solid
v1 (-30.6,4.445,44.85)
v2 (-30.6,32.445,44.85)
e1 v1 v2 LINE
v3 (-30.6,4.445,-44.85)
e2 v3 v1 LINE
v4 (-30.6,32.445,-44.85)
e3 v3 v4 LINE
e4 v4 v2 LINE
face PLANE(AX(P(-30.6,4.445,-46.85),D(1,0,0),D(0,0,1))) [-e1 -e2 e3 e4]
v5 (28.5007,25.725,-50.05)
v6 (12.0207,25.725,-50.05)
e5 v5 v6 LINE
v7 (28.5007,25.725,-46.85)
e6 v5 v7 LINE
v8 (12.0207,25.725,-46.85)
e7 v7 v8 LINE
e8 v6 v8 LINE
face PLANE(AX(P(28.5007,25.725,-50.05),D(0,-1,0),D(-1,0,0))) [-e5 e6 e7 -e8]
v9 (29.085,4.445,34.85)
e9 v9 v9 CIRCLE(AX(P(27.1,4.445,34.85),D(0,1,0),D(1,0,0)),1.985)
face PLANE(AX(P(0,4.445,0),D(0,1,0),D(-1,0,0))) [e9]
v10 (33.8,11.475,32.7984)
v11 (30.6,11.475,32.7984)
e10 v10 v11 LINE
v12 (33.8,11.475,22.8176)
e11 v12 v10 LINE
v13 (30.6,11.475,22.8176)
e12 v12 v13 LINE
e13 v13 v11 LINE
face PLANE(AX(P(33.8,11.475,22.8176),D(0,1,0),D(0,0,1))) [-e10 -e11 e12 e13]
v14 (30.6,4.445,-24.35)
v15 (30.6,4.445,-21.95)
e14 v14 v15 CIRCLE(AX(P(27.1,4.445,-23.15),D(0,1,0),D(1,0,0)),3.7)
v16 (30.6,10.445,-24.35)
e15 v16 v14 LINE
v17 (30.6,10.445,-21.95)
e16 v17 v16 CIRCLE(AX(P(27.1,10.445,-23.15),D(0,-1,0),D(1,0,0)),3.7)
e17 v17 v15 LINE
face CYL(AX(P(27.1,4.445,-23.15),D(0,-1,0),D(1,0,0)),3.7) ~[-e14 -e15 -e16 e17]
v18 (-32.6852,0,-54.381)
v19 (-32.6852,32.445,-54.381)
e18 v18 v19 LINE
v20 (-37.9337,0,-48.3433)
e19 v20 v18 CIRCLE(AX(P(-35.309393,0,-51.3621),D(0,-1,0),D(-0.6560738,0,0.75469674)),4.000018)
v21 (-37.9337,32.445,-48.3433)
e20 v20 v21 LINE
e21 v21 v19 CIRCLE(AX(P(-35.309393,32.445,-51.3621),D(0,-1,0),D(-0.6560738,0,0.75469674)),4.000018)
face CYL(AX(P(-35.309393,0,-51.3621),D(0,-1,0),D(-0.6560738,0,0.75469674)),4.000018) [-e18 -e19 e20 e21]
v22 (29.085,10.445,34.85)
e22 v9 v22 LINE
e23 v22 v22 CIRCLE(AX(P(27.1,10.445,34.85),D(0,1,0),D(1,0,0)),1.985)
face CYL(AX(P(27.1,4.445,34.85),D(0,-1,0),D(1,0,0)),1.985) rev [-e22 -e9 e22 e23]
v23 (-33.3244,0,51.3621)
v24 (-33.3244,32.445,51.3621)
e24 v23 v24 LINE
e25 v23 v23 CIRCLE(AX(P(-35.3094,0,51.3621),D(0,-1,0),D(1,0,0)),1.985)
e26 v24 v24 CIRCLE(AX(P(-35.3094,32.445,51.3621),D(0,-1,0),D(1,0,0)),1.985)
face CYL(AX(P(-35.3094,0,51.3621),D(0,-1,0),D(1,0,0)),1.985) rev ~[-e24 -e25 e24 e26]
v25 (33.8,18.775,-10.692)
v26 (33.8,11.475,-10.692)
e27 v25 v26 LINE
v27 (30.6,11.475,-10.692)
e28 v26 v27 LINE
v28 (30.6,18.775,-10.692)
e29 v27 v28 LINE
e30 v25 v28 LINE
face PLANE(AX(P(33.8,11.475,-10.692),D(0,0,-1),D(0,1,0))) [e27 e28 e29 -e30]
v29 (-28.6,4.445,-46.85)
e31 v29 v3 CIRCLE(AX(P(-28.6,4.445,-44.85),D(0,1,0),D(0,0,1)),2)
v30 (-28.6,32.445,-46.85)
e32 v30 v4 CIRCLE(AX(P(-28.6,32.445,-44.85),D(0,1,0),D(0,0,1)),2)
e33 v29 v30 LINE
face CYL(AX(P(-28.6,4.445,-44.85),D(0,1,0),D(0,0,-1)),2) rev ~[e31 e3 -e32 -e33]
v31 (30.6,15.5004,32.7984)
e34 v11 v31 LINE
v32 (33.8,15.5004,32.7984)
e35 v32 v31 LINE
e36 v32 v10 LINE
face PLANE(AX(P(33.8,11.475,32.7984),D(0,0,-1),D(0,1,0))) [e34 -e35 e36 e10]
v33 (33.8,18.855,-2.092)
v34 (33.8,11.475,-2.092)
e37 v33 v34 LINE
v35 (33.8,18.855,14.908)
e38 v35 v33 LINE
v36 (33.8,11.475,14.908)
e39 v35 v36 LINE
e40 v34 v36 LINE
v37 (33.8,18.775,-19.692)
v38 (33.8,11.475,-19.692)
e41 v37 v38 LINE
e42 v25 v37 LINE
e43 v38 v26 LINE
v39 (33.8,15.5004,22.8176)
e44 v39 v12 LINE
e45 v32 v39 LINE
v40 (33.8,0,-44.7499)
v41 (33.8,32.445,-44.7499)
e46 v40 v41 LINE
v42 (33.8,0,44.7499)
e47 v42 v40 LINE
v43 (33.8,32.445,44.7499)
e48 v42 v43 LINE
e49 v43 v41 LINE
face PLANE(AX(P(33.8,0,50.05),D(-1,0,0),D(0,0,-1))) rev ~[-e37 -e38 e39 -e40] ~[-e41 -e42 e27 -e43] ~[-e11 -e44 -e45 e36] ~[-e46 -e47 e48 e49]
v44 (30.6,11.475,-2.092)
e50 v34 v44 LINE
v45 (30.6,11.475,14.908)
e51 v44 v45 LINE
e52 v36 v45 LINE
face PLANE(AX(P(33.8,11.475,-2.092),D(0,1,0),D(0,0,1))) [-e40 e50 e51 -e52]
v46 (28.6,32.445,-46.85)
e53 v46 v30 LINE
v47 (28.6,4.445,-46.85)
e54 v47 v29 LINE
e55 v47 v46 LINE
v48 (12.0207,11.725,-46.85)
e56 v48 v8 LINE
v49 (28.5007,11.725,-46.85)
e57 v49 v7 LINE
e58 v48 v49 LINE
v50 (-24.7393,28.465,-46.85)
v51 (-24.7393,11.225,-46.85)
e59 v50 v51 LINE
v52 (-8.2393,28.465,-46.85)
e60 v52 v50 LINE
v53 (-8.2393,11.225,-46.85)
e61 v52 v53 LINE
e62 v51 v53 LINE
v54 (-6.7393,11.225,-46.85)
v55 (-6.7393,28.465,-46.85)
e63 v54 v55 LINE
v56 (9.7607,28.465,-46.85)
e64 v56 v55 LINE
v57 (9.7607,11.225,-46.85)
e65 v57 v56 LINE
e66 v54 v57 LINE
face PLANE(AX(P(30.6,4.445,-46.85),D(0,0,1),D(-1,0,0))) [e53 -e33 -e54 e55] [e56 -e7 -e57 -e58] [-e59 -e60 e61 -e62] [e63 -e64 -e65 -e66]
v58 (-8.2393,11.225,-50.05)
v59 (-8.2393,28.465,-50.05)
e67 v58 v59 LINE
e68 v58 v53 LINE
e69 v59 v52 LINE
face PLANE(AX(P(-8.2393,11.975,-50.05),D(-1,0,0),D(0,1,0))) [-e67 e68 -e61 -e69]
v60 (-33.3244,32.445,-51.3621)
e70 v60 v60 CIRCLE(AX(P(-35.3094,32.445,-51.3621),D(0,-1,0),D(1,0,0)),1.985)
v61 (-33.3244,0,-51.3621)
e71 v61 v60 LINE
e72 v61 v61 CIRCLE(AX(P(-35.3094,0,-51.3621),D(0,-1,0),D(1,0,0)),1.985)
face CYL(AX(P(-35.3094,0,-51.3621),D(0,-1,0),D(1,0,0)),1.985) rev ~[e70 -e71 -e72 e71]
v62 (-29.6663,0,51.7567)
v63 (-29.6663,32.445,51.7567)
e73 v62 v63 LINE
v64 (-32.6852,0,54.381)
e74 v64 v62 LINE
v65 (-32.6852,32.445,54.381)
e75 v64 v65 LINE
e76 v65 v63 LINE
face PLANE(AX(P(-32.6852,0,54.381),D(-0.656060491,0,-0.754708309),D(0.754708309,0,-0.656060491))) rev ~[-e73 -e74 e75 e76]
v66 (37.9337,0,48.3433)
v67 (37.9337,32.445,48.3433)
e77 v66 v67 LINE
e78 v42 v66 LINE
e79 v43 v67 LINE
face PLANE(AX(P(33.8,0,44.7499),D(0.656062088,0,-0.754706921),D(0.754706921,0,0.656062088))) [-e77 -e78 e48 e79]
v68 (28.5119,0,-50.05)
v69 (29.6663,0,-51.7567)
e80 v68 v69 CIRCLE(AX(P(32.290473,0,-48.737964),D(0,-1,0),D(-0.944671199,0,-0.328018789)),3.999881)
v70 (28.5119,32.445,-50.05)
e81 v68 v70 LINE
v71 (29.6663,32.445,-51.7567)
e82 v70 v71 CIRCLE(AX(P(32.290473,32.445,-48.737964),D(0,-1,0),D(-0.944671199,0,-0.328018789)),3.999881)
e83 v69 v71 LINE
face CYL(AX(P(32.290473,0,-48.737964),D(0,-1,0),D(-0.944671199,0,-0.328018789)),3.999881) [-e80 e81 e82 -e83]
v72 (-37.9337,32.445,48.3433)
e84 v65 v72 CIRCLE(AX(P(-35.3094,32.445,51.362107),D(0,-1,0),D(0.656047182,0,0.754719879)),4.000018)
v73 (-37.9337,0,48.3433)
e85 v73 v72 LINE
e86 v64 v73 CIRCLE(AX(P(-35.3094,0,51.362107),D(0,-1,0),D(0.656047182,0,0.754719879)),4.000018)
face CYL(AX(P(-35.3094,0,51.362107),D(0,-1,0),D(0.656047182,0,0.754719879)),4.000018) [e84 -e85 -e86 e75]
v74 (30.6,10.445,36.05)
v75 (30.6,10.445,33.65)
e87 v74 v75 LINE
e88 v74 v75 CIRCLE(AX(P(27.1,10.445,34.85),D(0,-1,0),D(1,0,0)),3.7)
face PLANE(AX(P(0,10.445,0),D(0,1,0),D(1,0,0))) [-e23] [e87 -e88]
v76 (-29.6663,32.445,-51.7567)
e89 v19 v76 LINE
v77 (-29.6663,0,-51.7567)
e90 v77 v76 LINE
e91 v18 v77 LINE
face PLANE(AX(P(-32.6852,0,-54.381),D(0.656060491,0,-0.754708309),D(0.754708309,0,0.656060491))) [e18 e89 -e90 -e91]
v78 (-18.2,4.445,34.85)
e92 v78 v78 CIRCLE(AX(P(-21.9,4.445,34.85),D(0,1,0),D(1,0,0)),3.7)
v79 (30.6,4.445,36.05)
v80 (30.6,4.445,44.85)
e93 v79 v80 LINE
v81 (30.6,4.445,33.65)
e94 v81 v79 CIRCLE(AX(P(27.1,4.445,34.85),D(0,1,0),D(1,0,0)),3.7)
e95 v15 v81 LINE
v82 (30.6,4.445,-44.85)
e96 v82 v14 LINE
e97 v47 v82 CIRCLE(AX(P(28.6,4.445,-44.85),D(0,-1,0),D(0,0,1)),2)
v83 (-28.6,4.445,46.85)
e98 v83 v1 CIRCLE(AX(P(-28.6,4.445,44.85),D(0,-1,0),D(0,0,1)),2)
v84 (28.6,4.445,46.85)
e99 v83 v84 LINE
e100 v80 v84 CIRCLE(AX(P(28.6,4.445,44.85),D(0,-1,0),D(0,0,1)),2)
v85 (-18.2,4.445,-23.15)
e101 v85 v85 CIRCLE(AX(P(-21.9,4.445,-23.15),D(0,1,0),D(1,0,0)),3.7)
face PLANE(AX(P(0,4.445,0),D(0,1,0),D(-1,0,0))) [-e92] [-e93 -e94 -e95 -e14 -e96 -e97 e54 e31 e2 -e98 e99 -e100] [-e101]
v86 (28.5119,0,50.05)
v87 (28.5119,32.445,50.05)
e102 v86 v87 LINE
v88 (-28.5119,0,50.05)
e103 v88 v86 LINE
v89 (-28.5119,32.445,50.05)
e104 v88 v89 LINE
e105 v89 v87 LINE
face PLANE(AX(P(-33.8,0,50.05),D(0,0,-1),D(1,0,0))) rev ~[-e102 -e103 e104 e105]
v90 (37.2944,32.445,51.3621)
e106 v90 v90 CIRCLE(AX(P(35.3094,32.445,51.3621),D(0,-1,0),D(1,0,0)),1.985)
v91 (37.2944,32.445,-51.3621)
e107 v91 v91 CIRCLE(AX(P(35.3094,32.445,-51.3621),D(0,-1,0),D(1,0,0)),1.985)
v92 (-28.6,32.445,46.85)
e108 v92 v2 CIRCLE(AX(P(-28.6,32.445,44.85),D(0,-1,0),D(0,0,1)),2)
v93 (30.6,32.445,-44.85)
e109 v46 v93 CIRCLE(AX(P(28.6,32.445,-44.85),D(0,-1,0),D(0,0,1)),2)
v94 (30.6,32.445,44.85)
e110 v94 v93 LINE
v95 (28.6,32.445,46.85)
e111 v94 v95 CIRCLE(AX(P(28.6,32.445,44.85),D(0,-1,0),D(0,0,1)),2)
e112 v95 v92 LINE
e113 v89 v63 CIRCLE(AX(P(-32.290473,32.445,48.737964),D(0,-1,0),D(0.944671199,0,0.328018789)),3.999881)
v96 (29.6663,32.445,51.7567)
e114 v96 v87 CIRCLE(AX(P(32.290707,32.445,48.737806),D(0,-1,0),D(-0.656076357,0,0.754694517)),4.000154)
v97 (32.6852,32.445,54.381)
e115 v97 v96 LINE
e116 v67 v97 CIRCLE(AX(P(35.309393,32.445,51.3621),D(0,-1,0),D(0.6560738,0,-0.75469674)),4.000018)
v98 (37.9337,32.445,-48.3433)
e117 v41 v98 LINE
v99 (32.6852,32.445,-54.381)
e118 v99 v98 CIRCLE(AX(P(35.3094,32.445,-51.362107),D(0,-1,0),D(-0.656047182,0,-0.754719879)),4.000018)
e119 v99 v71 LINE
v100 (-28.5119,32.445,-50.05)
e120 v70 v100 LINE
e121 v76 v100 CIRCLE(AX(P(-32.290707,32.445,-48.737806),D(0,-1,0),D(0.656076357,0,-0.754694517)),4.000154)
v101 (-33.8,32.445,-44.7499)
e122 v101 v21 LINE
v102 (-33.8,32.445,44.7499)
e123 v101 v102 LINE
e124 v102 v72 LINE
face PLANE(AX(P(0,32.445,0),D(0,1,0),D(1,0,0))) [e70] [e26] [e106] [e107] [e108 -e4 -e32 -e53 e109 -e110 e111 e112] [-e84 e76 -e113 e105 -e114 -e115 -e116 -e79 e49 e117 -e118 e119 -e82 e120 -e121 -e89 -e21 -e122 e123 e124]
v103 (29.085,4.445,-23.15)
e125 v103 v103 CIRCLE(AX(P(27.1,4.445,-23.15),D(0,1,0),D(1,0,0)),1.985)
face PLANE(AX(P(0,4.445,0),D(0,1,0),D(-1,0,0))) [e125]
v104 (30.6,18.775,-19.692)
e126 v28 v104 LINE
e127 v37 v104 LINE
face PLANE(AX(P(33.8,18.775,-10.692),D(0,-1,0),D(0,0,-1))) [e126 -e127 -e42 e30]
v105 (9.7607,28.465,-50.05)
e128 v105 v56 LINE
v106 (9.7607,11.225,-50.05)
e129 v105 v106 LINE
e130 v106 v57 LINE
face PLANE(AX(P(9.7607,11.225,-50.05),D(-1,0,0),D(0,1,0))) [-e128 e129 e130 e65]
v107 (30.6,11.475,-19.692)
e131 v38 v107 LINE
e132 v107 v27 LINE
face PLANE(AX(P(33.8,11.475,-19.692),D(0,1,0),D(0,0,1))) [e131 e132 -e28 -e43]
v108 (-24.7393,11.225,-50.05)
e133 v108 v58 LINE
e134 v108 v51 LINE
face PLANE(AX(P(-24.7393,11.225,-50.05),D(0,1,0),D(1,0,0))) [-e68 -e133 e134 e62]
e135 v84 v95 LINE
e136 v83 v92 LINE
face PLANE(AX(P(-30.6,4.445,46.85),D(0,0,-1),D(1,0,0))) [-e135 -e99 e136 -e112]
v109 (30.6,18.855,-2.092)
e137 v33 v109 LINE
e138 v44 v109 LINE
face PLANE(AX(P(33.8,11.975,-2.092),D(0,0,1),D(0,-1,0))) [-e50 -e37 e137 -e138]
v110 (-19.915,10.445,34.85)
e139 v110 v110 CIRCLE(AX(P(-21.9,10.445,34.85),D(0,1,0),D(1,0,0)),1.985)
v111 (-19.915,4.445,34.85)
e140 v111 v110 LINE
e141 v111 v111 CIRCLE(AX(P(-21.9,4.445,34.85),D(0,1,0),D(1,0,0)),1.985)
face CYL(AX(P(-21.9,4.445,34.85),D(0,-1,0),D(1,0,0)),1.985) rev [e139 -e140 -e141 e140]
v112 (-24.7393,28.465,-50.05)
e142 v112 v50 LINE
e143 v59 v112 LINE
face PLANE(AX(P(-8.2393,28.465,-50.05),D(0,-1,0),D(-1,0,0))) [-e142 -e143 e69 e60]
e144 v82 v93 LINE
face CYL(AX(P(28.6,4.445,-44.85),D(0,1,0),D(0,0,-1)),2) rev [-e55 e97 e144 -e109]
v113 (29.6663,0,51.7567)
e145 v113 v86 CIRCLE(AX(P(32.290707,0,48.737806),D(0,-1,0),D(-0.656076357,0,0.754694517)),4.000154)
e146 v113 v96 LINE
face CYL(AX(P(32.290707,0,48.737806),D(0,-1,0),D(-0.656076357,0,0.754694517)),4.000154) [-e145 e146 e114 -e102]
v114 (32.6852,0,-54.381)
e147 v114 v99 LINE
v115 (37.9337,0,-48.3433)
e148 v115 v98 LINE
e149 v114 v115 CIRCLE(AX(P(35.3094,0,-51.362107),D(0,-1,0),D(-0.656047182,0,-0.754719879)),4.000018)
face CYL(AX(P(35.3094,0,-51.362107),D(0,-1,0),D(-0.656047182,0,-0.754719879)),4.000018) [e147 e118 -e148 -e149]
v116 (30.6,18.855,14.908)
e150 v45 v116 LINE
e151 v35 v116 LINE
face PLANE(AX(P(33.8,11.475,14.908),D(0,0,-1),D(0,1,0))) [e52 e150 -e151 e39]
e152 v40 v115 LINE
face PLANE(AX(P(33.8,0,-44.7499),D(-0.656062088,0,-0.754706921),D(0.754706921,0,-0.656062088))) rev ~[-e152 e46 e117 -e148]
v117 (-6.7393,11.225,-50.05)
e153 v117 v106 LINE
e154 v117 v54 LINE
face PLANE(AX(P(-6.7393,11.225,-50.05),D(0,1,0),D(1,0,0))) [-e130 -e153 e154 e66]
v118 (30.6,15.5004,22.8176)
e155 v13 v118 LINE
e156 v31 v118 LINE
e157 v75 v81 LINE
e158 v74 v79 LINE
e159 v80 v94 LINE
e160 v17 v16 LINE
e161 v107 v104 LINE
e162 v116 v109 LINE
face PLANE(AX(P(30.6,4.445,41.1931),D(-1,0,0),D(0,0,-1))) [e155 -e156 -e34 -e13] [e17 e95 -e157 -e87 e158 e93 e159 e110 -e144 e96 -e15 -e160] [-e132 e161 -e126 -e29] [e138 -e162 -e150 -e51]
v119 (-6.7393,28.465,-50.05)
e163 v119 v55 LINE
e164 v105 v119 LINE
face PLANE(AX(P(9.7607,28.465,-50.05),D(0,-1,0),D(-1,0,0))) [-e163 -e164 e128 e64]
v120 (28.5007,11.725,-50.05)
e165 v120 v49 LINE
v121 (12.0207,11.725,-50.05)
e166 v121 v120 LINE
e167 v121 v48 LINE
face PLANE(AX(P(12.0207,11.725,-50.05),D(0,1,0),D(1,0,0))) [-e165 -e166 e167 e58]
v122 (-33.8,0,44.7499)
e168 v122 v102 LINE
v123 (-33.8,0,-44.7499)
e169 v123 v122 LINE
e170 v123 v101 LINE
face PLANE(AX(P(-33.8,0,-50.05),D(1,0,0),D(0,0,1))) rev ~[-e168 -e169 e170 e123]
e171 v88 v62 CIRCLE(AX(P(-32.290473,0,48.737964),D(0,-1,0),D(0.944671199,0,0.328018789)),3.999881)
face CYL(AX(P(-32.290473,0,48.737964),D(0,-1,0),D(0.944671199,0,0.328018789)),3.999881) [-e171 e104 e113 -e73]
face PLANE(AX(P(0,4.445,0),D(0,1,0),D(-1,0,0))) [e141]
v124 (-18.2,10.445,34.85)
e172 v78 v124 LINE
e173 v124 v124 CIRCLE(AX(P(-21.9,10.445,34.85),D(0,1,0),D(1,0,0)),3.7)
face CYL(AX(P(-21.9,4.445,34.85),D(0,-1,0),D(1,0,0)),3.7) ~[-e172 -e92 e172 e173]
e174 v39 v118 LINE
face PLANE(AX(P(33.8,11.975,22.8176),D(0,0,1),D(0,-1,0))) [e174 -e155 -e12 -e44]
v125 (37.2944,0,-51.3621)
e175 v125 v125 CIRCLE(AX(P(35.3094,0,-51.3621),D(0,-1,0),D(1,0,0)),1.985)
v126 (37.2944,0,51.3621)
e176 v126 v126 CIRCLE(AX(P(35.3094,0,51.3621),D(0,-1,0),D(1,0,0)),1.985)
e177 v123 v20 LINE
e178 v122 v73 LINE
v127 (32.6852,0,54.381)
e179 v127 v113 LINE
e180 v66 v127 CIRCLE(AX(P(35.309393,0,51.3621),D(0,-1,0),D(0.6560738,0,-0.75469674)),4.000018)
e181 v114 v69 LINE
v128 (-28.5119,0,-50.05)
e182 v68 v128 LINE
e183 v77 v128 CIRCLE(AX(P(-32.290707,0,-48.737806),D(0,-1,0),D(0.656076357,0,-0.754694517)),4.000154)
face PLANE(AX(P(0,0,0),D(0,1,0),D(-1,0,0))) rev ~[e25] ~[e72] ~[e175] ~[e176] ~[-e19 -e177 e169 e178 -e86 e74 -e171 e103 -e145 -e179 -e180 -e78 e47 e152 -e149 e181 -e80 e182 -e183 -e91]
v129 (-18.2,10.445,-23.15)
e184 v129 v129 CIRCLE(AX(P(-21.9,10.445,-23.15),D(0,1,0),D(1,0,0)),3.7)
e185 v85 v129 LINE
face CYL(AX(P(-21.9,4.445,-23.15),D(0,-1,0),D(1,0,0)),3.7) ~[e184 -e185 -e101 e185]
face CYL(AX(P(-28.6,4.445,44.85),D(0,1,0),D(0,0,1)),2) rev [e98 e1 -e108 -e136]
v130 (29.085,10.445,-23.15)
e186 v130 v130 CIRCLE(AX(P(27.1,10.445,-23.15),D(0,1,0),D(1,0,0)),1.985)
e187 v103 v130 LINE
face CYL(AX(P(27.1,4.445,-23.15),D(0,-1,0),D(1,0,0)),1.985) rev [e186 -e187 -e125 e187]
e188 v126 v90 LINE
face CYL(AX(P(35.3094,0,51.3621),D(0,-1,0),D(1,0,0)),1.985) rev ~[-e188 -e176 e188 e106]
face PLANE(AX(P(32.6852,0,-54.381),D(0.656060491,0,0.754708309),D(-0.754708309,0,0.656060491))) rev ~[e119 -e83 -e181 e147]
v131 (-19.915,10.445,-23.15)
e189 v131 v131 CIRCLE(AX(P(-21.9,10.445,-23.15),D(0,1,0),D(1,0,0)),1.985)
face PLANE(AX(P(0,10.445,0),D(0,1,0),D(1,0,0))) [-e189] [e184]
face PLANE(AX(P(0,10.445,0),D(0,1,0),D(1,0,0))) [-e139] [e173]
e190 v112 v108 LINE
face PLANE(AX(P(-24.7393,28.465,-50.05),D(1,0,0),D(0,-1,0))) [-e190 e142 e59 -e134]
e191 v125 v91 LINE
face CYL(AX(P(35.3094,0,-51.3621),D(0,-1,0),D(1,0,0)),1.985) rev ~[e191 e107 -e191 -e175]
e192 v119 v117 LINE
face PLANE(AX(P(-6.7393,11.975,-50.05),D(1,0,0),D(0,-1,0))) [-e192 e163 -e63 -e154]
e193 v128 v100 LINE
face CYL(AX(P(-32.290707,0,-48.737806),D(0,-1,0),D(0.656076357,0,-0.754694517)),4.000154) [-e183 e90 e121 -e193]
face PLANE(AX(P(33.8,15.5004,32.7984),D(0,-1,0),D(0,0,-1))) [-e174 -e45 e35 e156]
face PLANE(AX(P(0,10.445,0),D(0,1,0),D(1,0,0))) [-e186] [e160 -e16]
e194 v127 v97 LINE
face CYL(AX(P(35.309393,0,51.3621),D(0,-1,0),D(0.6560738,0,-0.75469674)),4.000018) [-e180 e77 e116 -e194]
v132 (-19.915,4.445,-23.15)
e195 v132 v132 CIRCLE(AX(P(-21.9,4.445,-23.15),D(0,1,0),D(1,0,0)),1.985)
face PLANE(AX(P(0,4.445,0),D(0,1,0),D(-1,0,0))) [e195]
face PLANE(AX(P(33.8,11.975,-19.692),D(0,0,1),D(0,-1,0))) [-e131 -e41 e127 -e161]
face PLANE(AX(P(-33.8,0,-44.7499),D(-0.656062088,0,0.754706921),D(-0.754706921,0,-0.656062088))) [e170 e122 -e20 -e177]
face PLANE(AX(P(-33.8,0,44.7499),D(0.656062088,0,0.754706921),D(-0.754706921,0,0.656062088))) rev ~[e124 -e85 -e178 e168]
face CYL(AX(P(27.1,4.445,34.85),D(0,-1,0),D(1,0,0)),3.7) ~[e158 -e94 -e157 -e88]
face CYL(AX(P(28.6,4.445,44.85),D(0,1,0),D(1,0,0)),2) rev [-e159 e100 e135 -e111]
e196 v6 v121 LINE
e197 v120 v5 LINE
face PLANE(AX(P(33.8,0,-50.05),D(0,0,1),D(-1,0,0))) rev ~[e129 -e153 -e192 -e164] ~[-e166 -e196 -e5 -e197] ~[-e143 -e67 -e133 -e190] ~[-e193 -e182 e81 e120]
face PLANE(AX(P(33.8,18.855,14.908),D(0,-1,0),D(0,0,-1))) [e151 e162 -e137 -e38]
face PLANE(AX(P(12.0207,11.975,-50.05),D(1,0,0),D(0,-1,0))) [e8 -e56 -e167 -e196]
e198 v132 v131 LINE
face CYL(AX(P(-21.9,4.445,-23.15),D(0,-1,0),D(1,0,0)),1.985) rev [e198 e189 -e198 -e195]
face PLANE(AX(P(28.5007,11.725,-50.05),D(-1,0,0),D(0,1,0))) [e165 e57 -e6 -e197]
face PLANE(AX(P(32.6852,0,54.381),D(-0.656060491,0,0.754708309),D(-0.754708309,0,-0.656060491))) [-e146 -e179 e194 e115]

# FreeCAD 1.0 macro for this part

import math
import FreeCAD as App
import Part
import Sketcher
Q = App.Units.Quantity


def edges_at(feature, points):
    """Names of the edges that pass closest to the given points."""
    edges = feature.Shape.Edges
    near = lambda p: min(range(len(edges)), key=lambda i: edges[i].distToShape(Part.Vertex(*p))[0])
    return sorted({f"Edge{near(p) + 1}" for p in points})

doc = App.newDocument("Part")
body = doc.addObject("PartDesign::Body", "Body")

sketch1 = body.newObject("Sketcher::SketchObject", "Sketch")
sketch1.AttachmentSupport = (doc.getObject("XZ_Plane"), [""])
sketch1.MapMode = "FlatFace"
sketch1.addGeometry(Part.LineSegment(App.Vector(34, 50, 0), App.Vector(34, -50, 0)), False)
sketch1.addGeometry(Part.LineSegment(App.Vector(34, -50, 0), App.Vector(-34, -50, 0)), False)
sketch1.addGeometry(Part.LineSegment(App.Vector(-34, -50, 0), App.Vector(-34, 50, 0)), False)
sketch1.addGeometry(Part.LineSegment(App.Vector(-34, 50, 0), App.Vector(34, 50, 0)), False)
sketch1.addConstraint(Sketcher.Constraint("Coincident", 0, 2, 1, 1))
sketch1.addConstraint(Sketcher.Constraint("Coincident", 1, 2, 2, 1))
sketch1.addConstraint(Sketcher.Constraint("Coincident", 2, 2, 3, 1))
sketch1.addConstraint(Sketcher.Constraint("Coincident", 3, 2, 0, 1))
sketch1.addConstraint(Sketcher.Constraint("Vertical", 0))
sketch1.addConstraint(Sketcher.Constraint("Horizontal", 1))
sketch1.addConstraint(Sketcher.Constraint("Vertical", 2))
sketch1.addConstraint(Sketcher.Constraint("Horizontal", 3))
sketch1.addConstraint(Sketcher.Constraint("Symmetric", 0, 2, 2, 2, -1, 1))
sketch1.addConstraint(Sketcher.Constraint("DistanceX", 1, 2, 1, 1, 67.6))
sketch1.addConstraint(Sketcher.Constraint("DistanceY", 0, 2, 0, 1, 100.1))
pad1 = body.newObject("PartDesign::Pad", "Pad")
pad1.Profile = sketch1
pad1.Length = 4.445
pad1.Reversed = True

sketch2 = body.newObject("Sketcher::SketchObject", "Sketch001")
sketch2.AttachmentSupport = (doc.getObject("XZ_Plane"), [""])
sketch2.MapMode = "FlatFace"
sketch2.AttachmentOffset = App.Placement(App.Vector(0, 0, -4.445), App.Rotation())
sketch2.addGeometry(Part.LineSegment(App.Vector(-34, 50, 0), App.Vector(34, 50, 0)), False)
sketch2.addGeometry(Part.LineSegment(App.Vector(34, 50, 0), App.Vector(34, -50, 0)), False)
sketch2.addGeometry(Part.LineSegment(App.Vector(34, -50, 0), App.Vector(-34, -50, 0)), False)
sketch2.addGeometry(Part.LineSegment(App.Vector(-34, -50, 0), App.Vector(-34, 50, 0)), False)
sketch2.addGeometry(Part.LineSegment(App.Vector(-31, -47, 0), App.Vector(31, -47, 0)), False)
sketch2.addGeometry(Part.LineSegment(App.Vector(31, -47, 0), App.Vector(31, 47, 0)), False)
sketch2.addGeometry(Part.LineSegment(App.Vector(31, 47, 0), App.Vector(-31, 47, 0)), False)
sketch2.addGeometry(Part.LineSegment(App.Vector(-31, 47, 0), App.Vector(-31, -47, 0)), False)
sketch2.addConstraint(Sketcher.Constraint("Coincident", 0, 2, 1, 1))
sketch2.addConstraint(Sketcher.Constraint("Coincident", 1, 2, 2, 1))
sketch2.addConstraint(Sketcher.Constraint("Coincident", 2, 2, 3, 1))
sketch2.addConstraint(Sketcher.Constraint("Coincident", 3, 2, 0, 1))
sketch2.addConstraint(Sketcher.Constraint("Coincident", 4, 2, 5, 1))
sketch2.addConstraint(Sketcher.Constraint("Coincident", 5, 2, 6, 1))
sketch2.addConstraint(Sketcher.Constraint("Coincident", 6, 2, 7, 1))
sketch2.addConstraint(Sketcher.Constraint("Coincident", 7, 2, 4, 1))
sketch2.addConstraint(Sketcher.Constraint("Horizontal", 0))
sketch2.addConstraint(Sketcher.Constraint("Vertical", 1))
sketch2.addConstraint(Sketcher.Constraint("Horizontal", 2))
sketch2.addConstraint(Sketcher.Constraint("Vertical", 3))
sketch2.addConstraint(Sketcher.Constraint("Horizontal", 4))
sketch2.addConstraint(Sketcher.Constraint("Vertical", 5))
sketch2.addConstraint(Sketcher.Constraint("Horizontal", 6))
sketch2.addConstraint(Sketcher.Constraint("Vertical", 7))
sketch2.addConstraint(Sketcher.Constraint("Symmetric", 0, 2, 2, 2, -1, 1))
sketch2.addConstraint(Sketcher.Constraint("Symmetric", 4, 2, 6, 2, -1, 1))
sketch2.addConstraint(Sketcher.Constraint("DistanceX", 4, 2, 1, 2, 3.2))
sketch2.addConstraint(Sketcher.Constraint("DistanceY", 1, 2, 4, 2, 3.2))
sketch2.addConstraint(Sketcher.Constraint("DistanceX", 0, 1, 0, 2, 67.6))
sketch2.addConstraint(Sketcher.Constraint("DistanceY", 1, 2, 1, 1, 100.1))
pad2 = body.newObject("PartDesign::Pad", "Pad001")
pad2.Profile = sketch2
pad2.Length = 28
pad2.Reversed = True

sketch3 = body.newObject("Sketcher::SketchObject", "Sketch002")
sketch3.AttachmentSupport = (doc.getObject("XZ_Plane"), [""])
sketch3.MapMode = "FlatFace"
sketch3.addGeometry(Part.LineSegment(App.Vector(28.5, 50, 0), App.Vector(33.8, 50, 0)), False)
sketch3.addGeometry(Part.LineSegment(App.Vector(33.8, 50, 0), App.Vector(33.8, 44.7, 0)), False)
sketch3.addGeometry(Part.LineSegment(App.Vector(33.8, 44.7, 0), App.Vector(37.9, 48.3, 0)), False)
sketch3.addGeometry(Part.ArcOfCircle(Part.Circle(App.Vector(35.3, 51.4, 0), App.Vector(0, 0, 1), 4), math.radians(-49), math.radians(131)), False)
sketch3.addGeometry(Part.LineSegment(App.Vector(32.7, 54.4, 0), App.Vector(29.7, 51.8, 0)), False)
sketch3.addGeometry(Part.ArcOfCircle(Part.Circle(App.Vector(32.3, 48.7, 0), App.Vector(0, 0, 1), 4), math.radians(131), math.radians(161)), False)
sketch3.addGeometry(Part.Circle(App.Vector(35.3, 51.4, 0), App.Vector(0, 0, 1), 2), False)
sketch3.addGeometry(Part.LineSegment(App.Vector(37.9, -48.3, 0), App.Vector(33.8, -44.7, 0)), False)
sketch3.addGeometry(Part.LineSegment(App.Vector(33.8, -44.7, 0), App.Vector(33.8, -50, 0)), False)
sketch3.addGeometry(Part.LineSegment(App.Vector(33.8, -50, 0), App.Vector(28.5, -50, 0)), False)
sketch3.addGeometry(Part.ArcOfCircle(Part.Circle(App.Vector(32.3, -48.7, 0), App.Vector(0, 0, 1), 4), math.radians(-161), math.radians(-131)), False)
sketch3.addGeometry(Part.LineSegment(App.Vector(29.7, -51.8, 0), App.Vector(32.7, -54.4, 0)), False)
sketch3.addGeometry(Part.ArcOfCircle(Part.Circle(App.Vector(35.3, -51.4, 0), App.Vector(0, 0, 1), 4), math.radians(-131), math.radians(49)), False)
sketch3.addGeometry(Part.Circle(App.Vector(35.3, -51.4, 0), App.Vector(0, 0, 1), 2), False)
sketch3.addGeometry(Part.LineSegment(App.Vector(-33.8, 50, 0), App.Vector(-28.5, 50, 0)), False)
sketch3.addGeometry(Part.ArcOfCircle(Part.Circle(App.Vector(-32.3, 48.7, 0), App.Vector(0, 0, 1), 4), math.radians(19), math.radians(49)), False)
sketch3.addGeometry(Part.LineSegment(App.Vector(-29.7, 51.8, 0), App.Vector(-32.7, 54.4, 0)), False)
sketch3.addGeometry(Part.ArcOfCircle(Part.Circle(App.Vector(-35.3, 51.4, 0), App.Vector(0, 0, 1), 4), math.radians(49), math.radians(229)), False)
sketch3.addGeometry(Part.LineSegment(App.Vector(-37.9, 48.3, 0), App.Vector(-33.8, 44.7, 0)), False)
sketch3.addGeometry(Part.LineSegment(App.Vector(-33.8, 44.7, 0), App.Vector(-33.8, 50, 0)), False)
sketch3.addGeometry(Part.Circle(App.Vector(-35.3, 51.4, 0), App.Vector(0, 0, 1), 2), False)
sketch3.addGeometry(Part.ArcOfCircle(Part.Circle(App.Vector(-32.3, -48.7, 0), App.Vector(0, 0, 1), 4), math.radians(-49), math.radians(-19)), False)
sketch3.addGeometry(Part.LineSegment(App.Vector(-28.5, -50, 0), App.Vector(-33.8, -50, 0)), False)
sketch3.addGeometry(Part.LineSegment(App.Vector(-33.8, -50, 0), App.Vector(-33.8, -44.7, 0)), False)
sketch3.addGeometry(Part.LineSegment(App.Vector(-33.8, -44.7, 0), App.Vector(-37.9, -48.3, 0)), False)
sketch3.addGeometry(Part.ArcOfCircle(Part.Circle(App.Vector(-35.3, -51.4, 0), App.Vector(0, 0, 1), 4), math.radians(131), math.radians(311)), False)
sketch3.addGeometry(Part.LineSegment(App.Vector(-32.7, -54.4, 0), App.Vector(-29.7, -51.8, 0)), False)
sketch3.addGeometry(Part.Circle(App.Vector(-35.3, -51.4, 0), App.Vector(0, 0, 1), 2), False)
sketch3.addConstraint(Sketcher.Constraint("Coincident", 0, 2, 1, 1))
sketch3.addConstraint(Sketcher.Constraint("Coincident", 1, 2, 2, 1))
sketch3.addConstraint(Sketcher.Constraint("Tangent", 2, 2, 3, 1))
sketch3.addConstraint(Sketcher.Constraint("Tangent", 3, 2, 4, 1))
sketch3.addConstraint(Sketcher.Constraint("Tangent", 4, 2, 5, 1))
sketch3.addConstraint(Sketcher.Constraint("Coincident", 5, 2, 0, 1))
sketch3.addConstraint(Sketcher.Constraint("Coincident", 7, 2, 8, 1))
sketch3.addConstraint(Sketcher.Constraint("Coincident", 8, 2, 9, 1))
sketch3.addConstraint(Sketcher.Constraint("Coincident", 9, 2, 10, 1))
sketch3.addConstraint(Sketcher.Constraint("Tangent", 10, 2, 11, 1))
sketch3.addConstraint(Sketcher.Constraint("Tangent", 11, 2, 12, 1))
sketch3.addConstraint(Sketcher.Constraint("Tangent", 12, 2, 7, 1))
sketch3.addConstraint(Sketcher.Constraint("Coincident", 14, 2, 15, 1))
sketch3.addConstraint(Sketcher.Constraint("Tangent", 15, 2, 16, 1))
sketch3.addConstraint(Sketcher.Constraint("Tangent", 16, 2, 17, 1))
sketch3.addConstraint(Sketcher.Constraint("Tangent", 17, 2, 18, 1))
sketch3.addConstraint(Sketcher.Constraint("Coincident", 18, 2, 19, 1))
sketch3.addConstraint(Sketcher.Constraint("Coincident", 19, 2, 14, 1))
sketch3.addConstraint(Sketcher.Constraint("Coincident", 21, 2, 22, 1))
sketch3.addConstraint(Sketcher.Constraint("Coincident", 22, 2, 23, 1))
sketch3.addConstraint(Sketcher.Constraint("Coincident", 23, 2, 24, 1))
sketch3.addConstraint(Sketcher.Constraint("Tangent", 24, 2, 25, 1))
sketch3.addConstraint(Sketcher.Constraint("Tangent", 25, 2, 26, 1))
sketch3.addConstraint(Sketcher.Constraint("Tangent", 26, 2, 21, 1))
sketch3.addConstraint(Sketcher.Constraint("Horizontal", 0))
sketch3.addConstraint(Sketcher.Constraint("Vertical", 1))
sketch3.addConstraint(Sketcher.Constraint("Vertical", 8))
sketch3.addConstraint(Sketcher.Constraint("Horizontal", 9))
sketch3.addConstraint(Sketcher.Constraint("Horizontal", 14))
sketch3.addConstraint(Sketcher.Constraint("Vertical", 19))
sketch3.addConstraint(Sketcher.Constraint("Horizontal", 22))
sketch3.addConstraint(Sketcher.Constraint("Vertical", 23))
sketch3.addConstraint(Sketcher.Constraint("Coincident", 6, 3, 3, 3))
sketch3.addConstraint(Sketcher.Constraint("Coincident", 13, 3, 12, 3))
sketch3.addConstraint(Sketcher.Constraint("Coincident", 20, 3, 17, 3))
sketch3.addConstraint(Sketcher.Constraint("Coincident", 27, 3, 25, 3))
sketch3.addConstraint(Sketcher.Constraint("Equal", 3, 5))
sketch3.addConstraint(Sketcher.Constraint("Equal", 5, 10))
sketch3.addConstraint(Sketcher.Constraint("Equal", 10, 12))
sketch3.addConstraint(Sketcher.Constraint("Equal", 6, 13))
sketch3.addConstraint(Sketcher.Constraint("Equal", 12, 15))
sketch3.addConstraint(Sketcher.Constraint("Equal", 15, 17))
sketch3.addConstraint(Sketcher.Constraint("Equal", 13, 20))
sketch3.addConstraint(Sketcher.Constraint("Equal", 17, 21))
sketch3.addConstraint(Sketcher.Constraint("Equal", 21, 25))
sketch3.addConstraint(Sketcher.Constraint("Equal", 20, 27))
sketch3.addConstraint(Sketcher.Constraint("Symmetric", 10, 3, 15, 3, -1, 1))
sketch3.addConstraint(Sketcher.Constraint("Symmetric", 12, 3, 17, 3, -1, 1))
sketch3.addConstraint(Sketcher.Constraint("Symmetric", 5, 3, 21, 3, -1, 1))
sketch3.addConstraint(Sketcher.Constraint("Symmetric", 3, 3, 25, 3, -1, 1))
sketch3.addConstraint(Sketcher.Constraint("Symmetric", 7, 2, 18, 2, -1, 1))
sketch3.addConstraint(Sketcher.Constraint("Symmetric", 0, 2, 22, 2, -1, 1))
sketch3.addConstraint(Sketcher.Constraint("Symmetric", 5, 3, 15, 3, -2))
sketch3.addConstraint(Sketcher.Constraint("Symmetric", 3, 3, 17, 3, -2))
sketch3.addConstraint(Sketcher.Constraint("Symmetric", 1, 2, 18, 2, -2))
sketch3.addConstraint(Sketcher.Constraint("Parallel", 2, 4))
sketch3.addConstraint(Sketcher.Constraint("Parallel", 4, 24))
sketch3.addConstraint(Sketcher.Constraint("Horizontal", 5, 2, 14, 2))
sketch3.addConstraint(Sketcher.Constraint("Horizontal", 9, 2, 21, 2))
sketch3.addConstraint(Sketcher.Constraint("Radius", 3, 4.0))
sketch3.addConstraint(Sketcher.Constraint("Diameter", 6, 3.97))
sketch3.addConstraint(Sketcher.Constraint("Angle", 2, Q("41.0002 deg")))
sketch3.addConstraint(Sketcher.Constraint("Distance", 4, 4.0))
sketch3.addConstraint(Sketcher.Constraint("DistanceY", 1, 2, 1, 1, 5.3))
sketch3.addConstraint(Sketcher.Constraint("DistanceX", -1, 1, 0, 2, 33.8))
sketch3.addConstraint(Sketcher.Constraint("DistanceY", 10, 3, 3, 3, 100.1))
sketch3.addConstraint(Sketcher.Constraint("DistanceX", 15, 3, 3, 3, 67.6))
pad3 = body.newObject("PartDesign::Pad", "Pad002")
pad3.Profile = sketch3
pad3.Length = 32.445
pad3.Reversed = True
doc.recompute()

fillet = body.newObject("PartDesign::Fillet", "Fillet")
fillet.Base = (pad3, edges_at(pad3, [
    (30.6, 18.445, -46.85),
    (-30.6, 18.445, -46.85),
    (-30.6, 18.445, 46.85),
    (30.6, 18.445, 46.85),
]))
fillet.Radius = 2

sketch4 = body.newObject("Sketcher::SketchObject", "Sketch003")
sketch4.AttachmentSupport = (doc.getObject("XZ_Plane"), [""])
sketch4.MapMode = "FlatFace"
sketch4.AttachmentOffset = App.Placement(App.Vector(0, 0, -4.445), App.Rotation())
sketch4.addGeometry(Part.Circle(App.Vector(27.1, 34.9, 0), App.Vector(0, 0, 1), 3.7), False)
sketch4.addGeometry(Part.Circle(App.Vector(27.1, 34.9, 0), App.Vector(0, 0, 1), 2), False)
sketch4.addGeometry(Part.Circle(App.Vector(27.1, -23.1, 0), App.Vector(0, 0, 1), 3.7), False)
sketch4.addGeometry(Part.Circle(App.Vector(27.1, -23.1, 0), App.Vector(0, 0, 1), 2), False)
sketch4.addGeometry(Part.Circle(App.Vector(-21.9, 34.9, 0), App.Vector(0, 0, 1), 3.7), False)
sketch4.addGeometry(Part.Circle(App.Vector(-21.9, 34.9, 0), App.Vector(0, 0, 1), 2), False)
sketch4.addGeometry(Part.Circle(App.Vector(-21.9, -23.1, 0), App.Vector(0, 0, 1), 3.7), False)
sketch4.addGeometry(Part.Circle(App.Vector(-21.9, -23.1, 0), App.Vector(0, 0, 1), 2), False)
sketch4.addConstraint(Sketcher.Constraint("Coincident", 1, 3, 0, 3))
sketch4.addConstraint(Sketcher.Constraint("Coincident", 3, 3, 2, 3))
sketch4.addConstraint(Sketcher.Constraint("Coincident", 5, 3, 4, 3))
sketch4.addConstraint(Sketcher.Constraint("Coincident", 7, 3, 6, 3))
sketch4.addConstraint(Sketcher.Constraint("Equal", 0, 2))
sketch4.addConstraint(Sketcher.Constraint("Equal", 1, 3))
sketch4.addConstraint(Sketcher.Constraint("Equal", 2, 4))
sketch4.addConstraint(Sketcher.Constraint("Equal", 3, 5))
sketch4.addConstraint(Sketcher.Constraint("Equal", 4, 6))
sketch4.addConstraint(Sketcher.Constraint("Equal", 5, 7))
sketch4.addConstraint(Sketcher.Constraint("Horizontal", 1, 3, 4, 3))
sketch4.addConstraint(Sketcher.Constraint("Horizontal", 3, 3, 6, 3))
sketch4.addConstraint(Sketcher.Constraint("Vertical", 1, 3, 2, 3))
sketch4.addConstraint(Sketcher.Constraint("Vertical", 5, 3, 6, 3))
sketch4.addConstraint(Sketcher.Constraint("Diameter", 0, 7.4))
sketch4.addConstraint(Sketcher.Constraint("Diameter", 1, 3.97))
sketch4.addConstraint(Sketcher.Constraint("DistanceY", 2, 3, 0, 3, 58.0))
sketch4.addConstraint(Sketcher.Constraint("DistanceX", 4, 3, 0, 3, 49.0))
sketch4.addConstraint(Sketcher.Constraint("DistanceX", -1, 1, 0, 3, 27.1))
sketch4.addConstraint(Sketcher.Constraint("DistanceY", -1, 1, 0, 3, 34.85))
pad4 = body.newObject("PartDesign::Pad", "Pad003")
pad4.Profile = sketch4
pad4.Length = 6
pad4.Reversed = True

sketch5 = body.newObject("Sketcher::SketchObject", "Sketch004")
sketch5.AttachmentSupport = (doc.getObject("YZ_Plane"), [""])
sketch5.MapMode = "FlatFace"
sketch5.AttachmentOffset = App.Placement(App.Vector(0, 0, 33.8), App.Rotation())
sketch5.addGeometry(Part.LineSegment(App.Vector(11.5, -19.7, 0), App.Vector(18.8, -19.7, 0)), False)
sketch5.addGeometry(Part.LineSegment(App.Vector(18.8, -19.7, 0), App.Vector(18.8, -10.7, 0)), False)
sketch5.addGeometry(Part.LineSegment(App.Vector(18.8, -10.7, 0), App.Vector(11.5, -10.7, 0)), False)
sketch5.addGeometry(Part.LineSegment(App.Vector(11.5, -10.7, 0), App.Vector(11.5, -19.7, 0)), False)
sketch5.addGeometry(Part.LineSegment(App.Vector(11.5, 22.8, 0), App.Vector(15.5, 22.8, 0)), False)
sketch5.addGeometry(Part.LineSegment(App.Vector(15.5, 22.8, 0), App.Vector(15.5, 32.8, 0)), False)
sketch5.addGeometry(Part.LineSegment(App.Vector(15.5, 32.8, 0), App.Vector(11.5, 32.8, 0)), False)
sketch5.addGeometry(Part.LineSegment(App.Vector(11.5, 32.8, 0), App.Vector(11.5, 22.8, 0)), False)
sketch5.addGeometry(Part.LineSegment(App.Vector(11.5, -2.1, 0), App.Vector(18.9, -2.1, 0)), False)
sketch5.addGeometry(Part.LineSegment(App.Vector(18.9, -2.1, 0), App.Vector(18.9, 14.9, 0)), False)
sketch5.addGeometry(Part.LineSegment(App.Vector(18.9, 14.9, 0), App.Vector(11.5, 14.9, 0)), False)
sketch5.addGeometry(Part.LineSegment(App.Vector(11.5, 14.9, 0), App.Vector(11.5, -2.1, 0)), False)
sketch5.addConstraint(Sketcher.Constraint("Coincident", 0, 2, 1, 1))
sketch5.addConstraint(Sketcher.Constraint("Coincident", 1, 2, 2, 1))
sketch5.addConstraint(Sketcher.Constraint("Coincident", 2, 2, 3, 1))
sketch5.addConstraint(Sketcher.Constraint("Coincident", 3, 2, 0, 1))
sketch5.addConstraint(Sketcher.Constraint("Coincident", 4, 2, 5, 1))
sketch5.addConstraint(Sketcher.Constraint("Coincident", 5, 2, 6, 1))
sketch5.addConstraint(Sketcher.Constraint("Coincident", 6, 2, 7, 1))
sketch5.addConstraint(Sketcher.Constraint("Coincident", 7, 2, 4, 1))
sketch5.addConstraint(Sketcher.Constraint("Coincident", 8, 2, 9, 1))
sketch5.addConstraint(Sketcher.Constraint("Coincident", 9, 2, 10, 1))
sketch5.addConstraint(Sketcher.Constraint("Coincident", 10, 2, 11, 1))
sketch5.addConstraint(Sketcher.Constraint("Coincident", 11, 2, 8, 1))
sketch5.addConstraint(Sketcher.Constraint("Horizontal", 0))
sketch5.addConstraint(Sketcher.Constraint("Vertical", 1))
sketch5.addConstraint(Sketcher.Constraint("Horizontal", 2))
sketch5.addConstraint(Sketcher.Constraint("Vertical", 3))
sketch5.addConstraint(Sketcher.Constraint("Horizontal", 4))
sketch5.addConstraint(Sketcher.Constraint("Vertical", 5))
sketch5.addConstraint(Sketcher.Constraint("Horizontal", 6))
sketch5.addConstraint(Sketcher.Constraint("Vertical", 7))
sketch5.addConstraint(Sketcher.Constraint("Horizontal", 8))
sketch5.addConstraint(Sketcher.Constraint("Vertical", 9))
sketch5.addConstraint(Sketcher.Constraint("Horizontal", 10))
sketch5.addConstraint(Sketcher.Constraint("Vertical", 11))
sketch5.addConstraint(Sketcher.Constraint("Vertical", 3, 2, 6, 2))
sketch5.addConstraint(Sketcher.Constraint("Vertical", 7, 2, 10, 2))
sketch5.addConstraint(Sketcher.Constraint("DistanceY", 1, 1, 1, 2, 9.0))
sketch5.addConstraint(Sketcher.Constraint("DistanceY", 9, 1, 9, 2, 17.0))
sketch5.addConstraint(Sketcher.Constraint("DistanceX", 0, 1, 0, 2, 7.3))
sketch5.addConstraint(Sketcher.Constraint("DistanceX", 8, 1, 8, 2, 7.38))
sketch5.addConstraint(Sketcher.Constraint("DistanceY", 1, 2, 8, 2, 8.6))
sketch5.addConstraint(Sketcher.Constraint("DistanceX", 4, 1, 4, 2, 4.0254))
sketch5.addConstraint(Sketcher.Constraint("DistanceY", 5, 1, 5, 2, 9.9808))
sketch5.addConstraint(Sketcher.Constraint("DistanceX", -1, 1, 0, 2, 18.775))
sketch5.addConstraint(Sketcher.Constraint("DistanceY", 0, 2, -1, 1, 19.692))
sketch5.addConstraint(Sketcher.Constraint("DistanceY", -1, 1, 4, 2, 22.8176))
pocket1 = body.newObject("PartDesign::Pocket", "Pocket")
pocket1.Profile = sketch5
pocket1.Length = 3.2

sketch6 = body.newObject("Sketcher::SketchObject", "Sketch005")
sketch6.AttachmentSupport = (doc.getObject("XY_Plane"), [""])
sketch6.MapMode = "FlatFace"
sketch6.AttachmentOffset = App.Placement(App.Vector(0, 0, -50.05), App.Rotation())
sketch6.addGeometry(Part.LineSegment(App.Vector(12, 12, 0), App.Vector(12, 26, 0)), False)
sketch6.addGeometry(Part.LineSegment(App.Vector(12, 26, 0), App.Vector(29, 26, 0)), False)
sketch6.addGeometry(Part.LineSegment(App.Vector(29, 26, 0), App.Vector(29, 12, 0)), False)
sketch6.addGeometry(Part.LineSegment(App.Vector(29, 12, 0), App.Vector(12, 12, 0)), False)
sketch6.addGeometry(Part.LineSegment(App.Vector(-7, 11, 0), App.Vector(-7, 28, 0)), False)
sketch6.addGeometry(Part.LineSegment(App.Vector(-7, 28, 0), App.Vector(10, 28, 0)), False)
sketch6.addGeometry(Part.LineSegment(App.Vector(10, 28, 0), App.Vector(10, 11, 0)), False)
sketch6.addGeometry(Part.LineSegment(App.Vector(10, 11, 0), App.Vector(-7, 11, 0)), False)
sketch6.addGeometry(Part.LineSegment(App.Vector(-8, 28, 0), App.Vector(-8, 11, 0)), False)
sketch6.addGeometry(Part.LineSegment(App.Vector(-8, 11, 0), App.Vector(-25, 11, 0)), False)
sketch6.addGeometry(Part.LineSegment(App.Vector(-25, 11, 0), App.Vector(-25, 28, 0)), False)
sketch6.addGeometry(Part.LineSegment(App.Vector(-25, 28, 0), App.Vector(-8, 28, 0)), False)
sketch6.addConstraint(Sketcher.Constraint("Coincident", 0, 2, 1, 1))
sketch6.addConstraint(Sketcher.Constraint("Coincident", 1, 2, 2, 1))
sketch6.addConstraint(Sketcher.Constraint("Coincident", 2, 2, 3, 1))
sketch6.addConstraint(Sketcher.Constraint("Coincident", 3, 2, 0, 1))
sketch6.addConstraint(Sketcher.Constraint("Coincident", 4, 2, 5, 1))
sketch6.addConstraint(Sketcher.Constraint("Coincident", 5, 2, 6, 1))
sketch6.addConstraint(Sketcher.Constraint("Coincident", 6, 2, 7, 1))
sketch6.addConstraint(Sketcher.Constraint("Coincident", 7, 2, 4, 1))
sketch6.addConstraint(Sketcher.Constraint("Coincident", 8, 2, 9, 1))
sketch6.addConstraint(Sketcher.Constraint("Coincident", 9, 2, 10, 1))
sketch6.addConstraint(Sketcher.Constraint("Coincident", 10, 2, 11, 1))
sketch6.addConstraint(Sketcher.Constraint("Coincident", 11, 2, 8, 1))
sketch6.addConstraint(Sketcher.Constraint("Vertical", 0))
sketch6.addConstraint(Sketcher.Constraint("Horizontal", 1))
sketch6.addConstraint(Sketcher.Constraint("Vertical", 2))
sketch6.addConstraint(Sketcher.Constraint("Horizontal", 3))
sketch6.addConstraint(Sketcher.Constraint("Vertical", 4))
sketch6.addConstraint(Sketcher.Constraint("Horizontal", 5))
sketch6.addConstraint(Sketcher.Constraint("Vertical", 6))
sketch6.addConstraint(Sketcher.Constraint("Horizontal", 7))
sketch6.addConstraint(Sketcher.Constraint("Vertical", 8))
sketch6.addConstraint(Sketcher.Constraint("Horizontal", 9))
sketch6.addConstraint(Sketcher.Constraint("Vertical", 10))
sketch6.addConstraint(Sketcher.Constraint("Horizontal", 11))
sketch6.addConstraint(Sketcher.Constraint("Horizontal", 7, 2, 8, 2))
sketch6.addConstraint(Sketcher.Constraint("Horizontal", 5, 2, 10, 2))
sketch6.addConstraint(Sketcher.Constraint("Equal", 7, 9))
sketch6.addConstraint(Sketcher.Constraint("DistanceY", 0, 1, 0, 2, 14.0))
sketch6.addConstraint(Sketcher.Constraint("DistanceX", 5, 1, 5, 2, 16.5))
sketch6.addConstraint(Sketcher.Constraint("DistanceX", 8, 2, 6, 2, 18.0))
sketch6.addConstraint(Sketcher.Constraint("DistanceX", 1, 1, 1, 2, 16.48))
sketch6.addConstraint(Sketcher.Constraint("DistanceY", 4, 1, 4, 2, 17.24))
sketch6.addConstraint(Sketcher.Constraint("DistanceY", 6, 2, 3, 2, 0.5))
sketch6.addConstraint(Sketcher.Constraint("DistanceX", 4, 2, 0, 2, 18.76))
sketch6.addConstraint(Sketcher.Constraint("DistanceY", -1, 1, 0, 2, 25.725))
sketch6.addConstraint(Sketcher.Constraint("DistanceX", -1, 1, 0, 2, 12.0207))
pocket2 = body.newObject("PartDesign::Pocket", "Pocket001")
pocket2.Profile = sketch6
pocket2.Length = 3.2
pocket2.Reversed = True

doc.recompute()
